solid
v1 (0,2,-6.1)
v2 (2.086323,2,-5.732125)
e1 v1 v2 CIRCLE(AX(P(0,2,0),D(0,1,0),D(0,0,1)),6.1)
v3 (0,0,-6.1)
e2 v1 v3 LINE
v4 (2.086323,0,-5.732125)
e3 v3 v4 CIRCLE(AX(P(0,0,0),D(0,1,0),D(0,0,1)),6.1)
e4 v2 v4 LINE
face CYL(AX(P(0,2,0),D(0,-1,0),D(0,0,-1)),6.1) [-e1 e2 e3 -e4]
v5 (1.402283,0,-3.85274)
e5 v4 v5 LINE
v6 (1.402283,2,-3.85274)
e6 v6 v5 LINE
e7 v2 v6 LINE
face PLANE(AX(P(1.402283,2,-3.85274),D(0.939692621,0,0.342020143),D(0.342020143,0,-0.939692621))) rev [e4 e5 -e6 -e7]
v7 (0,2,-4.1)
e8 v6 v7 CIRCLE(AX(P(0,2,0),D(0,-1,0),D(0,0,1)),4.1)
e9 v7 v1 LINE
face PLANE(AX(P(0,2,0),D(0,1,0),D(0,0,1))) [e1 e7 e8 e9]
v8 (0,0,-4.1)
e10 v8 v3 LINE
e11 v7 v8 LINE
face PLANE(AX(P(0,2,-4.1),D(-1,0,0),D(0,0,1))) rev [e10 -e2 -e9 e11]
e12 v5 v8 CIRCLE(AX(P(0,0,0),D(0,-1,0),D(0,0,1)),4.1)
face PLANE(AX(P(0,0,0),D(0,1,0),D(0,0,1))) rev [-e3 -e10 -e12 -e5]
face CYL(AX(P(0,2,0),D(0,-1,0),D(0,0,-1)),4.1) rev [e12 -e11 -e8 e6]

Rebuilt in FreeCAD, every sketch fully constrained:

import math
import FreeCAD as App
import Part
import Sketcher

V = App.Vector
Q = App.Units.Quantity

doc = App.newDocument("Part")
params = doc.addObject("Spreadsheet::Sheet", "Params")
for row, (alias, value) in enumerate([
    ("sketch1_radius", "6.1 mm"),
    ("sketch1_radius2", "4.1 mm"),
    ("pad1_length", "2 mm"),
], start=1):
    params.set(f"A{row}", alias)
    params.set(f"B{row}", "=" + value)
    params.setAlias(f"B{row}", alias)

body = doc.addObject("PartDesign::Body", "Body")

# Sketch on XZ plane
sketch1 = body.newObject("Sketcher::SketchObject", "Sketch")
sketch1.AttachmentSupport = (doc.getObject("XZ_Plane"), [""])
sketch1.MapMode = "FlatFace"
sketch1.addGeometry([
    Part.LineSegment(V(0, -4.1, 0), V(0, -6.1, 0)),
    Part.ArcOfCircle(Part.Circle(V(0, 0, 0), V(0, 0, 1), 6.1), math.radians(-70), math.radians(270)),
    Part.LineSegment(V(2.1, -5.7, 0), V(1.4, -3.9, 0)),
    Part.ArcOfCircle(Part.Circle(V(0, 0, 0), V(0, 0, 1), 4.1), math.radians(-70), math.radians(270)),
], False)
sketch1.addConstraint([
    Sketcher.Constraint("Coincident", 0, 2, 1, 2),
    Sketcher.Constraint("Coincident", 1, 1, 2, 1),
    Sketcher.Constraint("Coincident", 2, 2, 3, 1),
    Sketcher.Constraint("Coincident", 3, 2, 0, 1),
    Sketcher.Constraint("Vertical", 0),
    Sketcher.Constraint("Coincident", 1, 3, -1, 1),
    Sketcher.Constraint("Coincident", 3, 3, -1, 1),
    Sketcher.Constraint("PointOnObject", 0, 2, -2),
    Sketcher.Constraint("Radius", 1, Q("6.1 mm")),
    Sketcher.Constraint("Radius", 3, Q("4.1 mm")),
    Sketcher.Constraint("Angle", 2, Q("110 deg")),
    Sketcher.Constraint("DistanceY", 2, 2, -1, 1, Q("3.85274 mm")),
])
sketch1.setExpression("Constraints[8]", "Params.sketch1_radius")
sketch1.setExpression("Constraints[9]", "Params.sketch1_radius2")
pad1 = body.newObject("PartDesign::Pad", "Pad")
pad1.Profile = sketch1
pad1.setExpression("Length", "Params.pad1_length")
pad1.Reversed = True

doc.recompute()
